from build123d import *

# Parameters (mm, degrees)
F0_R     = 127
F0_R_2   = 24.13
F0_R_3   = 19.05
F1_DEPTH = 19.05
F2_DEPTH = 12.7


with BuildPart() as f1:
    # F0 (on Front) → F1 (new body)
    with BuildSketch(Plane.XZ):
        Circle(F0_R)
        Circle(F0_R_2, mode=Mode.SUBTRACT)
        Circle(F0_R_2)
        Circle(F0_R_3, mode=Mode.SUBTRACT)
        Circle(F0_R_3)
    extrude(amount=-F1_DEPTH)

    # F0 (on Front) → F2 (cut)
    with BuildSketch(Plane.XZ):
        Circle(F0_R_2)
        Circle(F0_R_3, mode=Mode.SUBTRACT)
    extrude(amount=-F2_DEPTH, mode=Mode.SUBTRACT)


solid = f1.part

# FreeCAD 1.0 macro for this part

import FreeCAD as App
import Part
import Sketcher

V = App.Vector
Q = App.Units.Quantity

doc = App.newDocument("Part")
params = doc.addObject("Spreadsheet::Sheet", "Params")
for row, (alias, value) in enumerate([
    ("sketch1_diameter", "10 in"),
    ("pad1_length", "0.75 in"),
    ("sketch2_diameter", "1.9 in"),
    ("sketch2_diameter2", "1.5 in"),
    ("pocket1_length", "0.5 in"),
], start=1):
    params.set(f"A{row}", alias)
    params.set(f"B{row}", "=" + value)
    params.setAlias(f"B{row}", alias)

body = doc.addObject("PartDesign::Body", "Body")

# Sketch on XZ plane
sketch1 = body.newObject("Sketcher::SketchObject", "Sketch")
sketch1.AttachmentSupport = (doc.getObject("XZ_Plane"), [""])
sketch1.MapMode = "FlatFace"
sketch1.addGeometry(Part.Circle(V(0, 0, 0), V(0, 0, 1), 127), False)
sketch1.addConstraint(Sketcher.Constraint("Coincident", 0, 3, -1, 1))
sketch1.addConstraint(Sketcher.Constraint("Diameter", 0, Q("10 in")))
sketch1.setExpression("Constraints[1]", "Params.sketch1_diameter")
pad1 = body.newObject("PartDesign::Pad", "Pad")
pad1.Profile = sketch1
pad1.setExpression("Length", "Params.pad1_length")
pad1.Reversed = True

# Sketch on XZ plane
sketch2 = body.newObject("Sketcher::SketchObject", "Sketch001")
sketch2.AttachmentSupport = (doc.getObject("XZ_Plane"), [""])
sketch2.MapMode = "FlatFace"
sketch2.addGeometry(Part.Circle(V(0, 0, 0), V(0, 0, 1), 24), False)
sketch2.addGeometry(Part.Circle(V(0, 0, 0), V(0, 0, 1), 19), False)
sketch2.addConstraint(Sketcher.Constraint("Coincident", 0, 3, -1, 1))
sketch2.addConstraint(Sketcher.Constraint("Coincident", 1, 3, -1, 1))
sketch2.addConstraint(Sketcher.Constraint("Diameter", 0, Q("1.9 in")))
sketch2.addConstraint(Sketcher.Constraint("Diameter", 1, Q("1.5 in")))
sketch2.setExpression("Constraints[2]", "Params.sketch2_diameter")
sketch2.setExpression("Constraints[3]", "Params.sketch2_diameter2")
pocket1 = body.newObject("PartDesign::Pocket", "Pocket")
pocket1.Profile = sketch2
pocket1.setExpression("Length", "Params.pocket1_length")

doc.recompute()
